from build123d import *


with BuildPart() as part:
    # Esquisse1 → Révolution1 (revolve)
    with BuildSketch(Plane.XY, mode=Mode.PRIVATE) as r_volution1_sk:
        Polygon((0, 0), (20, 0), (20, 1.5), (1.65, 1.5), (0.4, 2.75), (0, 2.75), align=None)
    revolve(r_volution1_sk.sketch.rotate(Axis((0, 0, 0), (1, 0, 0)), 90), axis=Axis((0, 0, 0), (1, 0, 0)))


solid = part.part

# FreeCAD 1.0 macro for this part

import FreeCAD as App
import Part
import Sketcher
from FreeCAD import Vector
Q = App.Units.Quantity


def add_polygon(sketch, points):
    """Adds a closed chain of lines whose ends are joined by coincident constraints."""
    first, n = sketch.GeometryCount, len(points)
    for a, b in zip(points, points[1:] + points[:1]):
        sketch.addGeometry(Part.LineSegment(App.Vector(*a, 0), App.Vector(*b, 0)), False)
    for i in range(n):
        sketch.addConstraint(Sketcher.Constraint("Coincident", first + i, 2, first + (i + 1) % n, 1))

doc = App.newDocument("Part")
body = doc.addObject("PartDesign::Body", "Body")

# Sketch on XY plane
sketch1 = body.newObject("Sketcher::SketchObject", "Sketch")
sketch1.AttachmentSupport = (doc.getObject("XY_Plane"), [""])
sketch1.MapMode = "FlatFace"
add_polygon(sketch1, [(0, 0), (20, 0), (20, 1.5), (1.65, 1.5), (0.4, 2.75), (0, 2.75)])  # lines 0-5
sketch1.addConstraint(Sketcher.Constraint("Horizontal", 0))
sketch1.addConstraint(Sketcher.Constraint("Vertical", 1))
sketch1.addConstraint(Sketcher.Constraint("Horizontal", 2))
sketch1.addConstraint(Sketcher.Constraint("Horizontal", 4))
sketch1.addConstraint(Sketcher.Constraint("Vertical", 5))
sketch1.addConstraint(Sketcher.Constraint("Coincident", 5, 2, -1, 1))
sketch1.addConstraint(Sketcher.Constraint("DistanceX", 0, 1, 0, 2, 20.0))
sketch1.addConstraint(Sketcher.Constraint("Angle", 3, Q("135 deg")))
sketch1.addConstraint(Sketcher.Constraint("DistanceX", 4, 2, 4, 1, 0.4))
sketch1.addConstraint(Sketcher.Constraint("DistanceY", 1, 1, 1, 2, 1.5))
sketch1.addConstraint(Sketcher.Constraint("DistanceX", 2, 2, 2, 1, 18.35))
revolution = body.newObject("PartDesign::Revolution", "Revolution")
revolution.Profile = sketch1
revolution.ReferenceAxis = (sketch1, ["H_Axis"])
revolution.Angle = 360

doc.recompute()
